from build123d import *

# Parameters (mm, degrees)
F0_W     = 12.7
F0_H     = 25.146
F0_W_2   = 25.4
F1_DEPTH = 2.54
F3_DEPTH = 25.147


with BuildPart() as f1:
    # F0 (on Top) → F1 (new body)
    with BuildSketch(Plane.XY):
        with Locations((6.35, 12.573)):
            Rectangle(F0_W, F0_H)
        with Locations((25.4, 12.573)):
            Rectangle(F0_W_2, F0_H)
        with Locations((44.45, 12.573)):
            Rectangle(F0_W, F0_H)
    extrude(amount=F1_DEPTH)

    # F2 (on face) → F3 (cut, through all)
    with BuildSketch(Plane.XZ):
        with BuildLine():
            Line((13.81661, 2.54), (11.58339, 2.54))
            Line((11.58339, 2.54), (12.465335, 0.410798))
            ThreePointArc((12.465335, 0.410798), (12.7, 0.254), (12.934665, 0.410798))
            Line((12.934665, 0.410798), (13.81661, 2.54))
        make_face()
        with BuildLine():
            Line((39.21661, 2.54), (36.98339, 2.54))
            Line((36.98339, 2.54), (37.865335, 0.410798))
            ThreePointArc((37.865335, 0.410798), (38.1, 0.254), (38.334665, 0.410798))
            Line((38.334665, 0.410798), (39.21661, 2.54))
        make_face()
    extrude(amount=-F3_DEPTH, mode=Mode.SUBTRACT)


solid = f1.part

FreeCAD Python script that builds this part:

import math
import FreeCAD as App
import Part
import Sketcher
Q = App.Units.Quantity

doc = App.newDocument("Part")
body = doc.addObject("PartDesign::Body", "Body")

sketch1 = body.newObject("Sketcher::SketchObject", "Sketch")
sketch1.AttachmentSupport = (doc.getObject("XY_Plane"), [""])
sketch1.MapMode = "FlatFace"
sketch1.addGeometry([
    Part.LineSegment(App.Vector(0, 25, 0), App.Vector(0, 0, 0)),
    Part.LineSegment(App.Vector(0, 0, 0), App.Vector(51, 0, 0)),
    Part.LineSegment(App.Vector(51, 0, 0), App.Vector(51, 25, 0)),
    Part.LineSegment(App.Vector(51, 25, 0), App.Vector(0, 25, 0)),
], False)
sketch1.addConstraint([
    Sketcher.Constraint("Coincident", 0, 2, 1, 1),
    Sketcher.Constraint("Coincident", 1, 2, 2, 1),
    Sketcher.Constraint("Coincident", 2, 2, 3, 1),
    Sketcher.Constraint("Coincident", 3, 2, 0, 1),
    Sketcher.Constraint("Vertical", 0),
    Sketcher.Constraint("Horizontal", 1),
    Sketcher.Constraint("Vertical", 2),
    Sketcher.Constraint("Horizontal", 3),
    Sketcher.Constraint("Coincident", 0, 2, -1, 1),
    Sketcher.Constraint("DistanceX", 1, 1, 1, 2, Q("2 in")),
    Sketcher.Constraint("DistanceY", 0, 2, 0, 1, Q("0.99 in")),
])
pad1 = body.newObject("PartDesign::Pad", "Pad")
pad1.Profile = sketch1
pad1.Length = Q("0.1 in")

sketch2 = body.newObject("Sketcher::SketchObject", "Sketch001")
sketch2.AttachmentSupport = (doc.getObject("XZ_Plane"), [""])
sketch2.MapMode = "FlatFace"
sketch2.addGeometry([
    Part.LineSegment(App.Vector(13.82, 2.54, 0), App.Vector(11.58, 2.54, 0)),
    Part.LineSegment(App.Vector(11.58, 2.54, 0), App.Vector(12.47, 0.41, 0)),
    Part.ArcOfCircle(Part.Circle(App.Vector(12.7, 0.51, 0), App.Vector(0, 0, 1), 0.25), math.radians(-157), math.radians(-23)),
    Part.LineSegment(App.Vector(12.93, 0.41, 0), App.Vector(13.82, 2.54, 0)),
    Part.LineSegment(App.Vector(39.22, 2.54, 0), App.Vector(36.98, 2.54, 0)),
    Part.LineSegment(App.Vector(36.98, 2.54, 0), App.Vector(37.87, 0.41, 0)),
    Part.ArcOfCircle(Part.Circle(App.Vector(38.1, 0.51, 0), App.Vector(0, 0, 1), 0.25), math.radians(-157), math.radians(-23)),
    Part.LineSegment(App.Vector(38.33, 0.41, 0), App.Vector(39.22, 2.54, 0)),
], False)
sketch2.addConstraint([
    Sketcher.Constraint("Coincident", 0, 2, 1, 1),
    Sketcher.Constraint("Tangent", 1, 2, 2, 1),
    Sketcher.Constraint("Tangent", 2, 2, 3, 1),
    Sketcher.Constraint("Coincident", 3, 2, 0, 1),
    Sketcher.Constraint("Coincident", 4, 2, 5, 1),
    Sketcher.Constraint("Tangent", 5, 2, 6, 1),
    Sketcher.Constraint("Tangent", 6, 2, 7, 1),
    Sketcher.Constraint("Coincident", 7, 2, 4, 1),
    Sketcher.Constraint("Horizontal", 0),
    Sketcher.Constraint("Horizontal", 4),
    Sketcher.Constraint("Equal", 2, 6),
    Sketcher.Constraint("Parallel", 1, 5),
    Sketcher.Constraint("Parallel", 3, 7),
    Sketcher.Constraint("Horizontal", 2, 3, 6, 3),
    Sketcher.Constraint("Horizontal", 1, 2, 2, 2),
    Sketcher.Constraint("Horizontal", 3, 2, 4, 2),
    Sketcher.Constraint("Radius", 2, Q("0.01 in")),
    Sketcher.Constraint("DistanceX", 2, 3, 6, 3, Q("1 in")),
    Sketcher.Constraint("DistanceX", -1, 1, 2, 3, Q("0.5 in")),
    Sketcher.Constraint("DistanceY", -1, 1, 0, 2, Q("0.1 in")),
    Sketcher.Constraint("Angle", 1, Q("-67.499985 deg")),
    Sketcher.Constraint("DistanceY", -1, 1, 2, 3, Q("0.02 in")),
])
pocket1 = body.newObject("PartDesign::Pocket", "Pocket")
pocket1.Profile = sketch2
pocket1.Type = "ThroughAll"

doc.recompute()
